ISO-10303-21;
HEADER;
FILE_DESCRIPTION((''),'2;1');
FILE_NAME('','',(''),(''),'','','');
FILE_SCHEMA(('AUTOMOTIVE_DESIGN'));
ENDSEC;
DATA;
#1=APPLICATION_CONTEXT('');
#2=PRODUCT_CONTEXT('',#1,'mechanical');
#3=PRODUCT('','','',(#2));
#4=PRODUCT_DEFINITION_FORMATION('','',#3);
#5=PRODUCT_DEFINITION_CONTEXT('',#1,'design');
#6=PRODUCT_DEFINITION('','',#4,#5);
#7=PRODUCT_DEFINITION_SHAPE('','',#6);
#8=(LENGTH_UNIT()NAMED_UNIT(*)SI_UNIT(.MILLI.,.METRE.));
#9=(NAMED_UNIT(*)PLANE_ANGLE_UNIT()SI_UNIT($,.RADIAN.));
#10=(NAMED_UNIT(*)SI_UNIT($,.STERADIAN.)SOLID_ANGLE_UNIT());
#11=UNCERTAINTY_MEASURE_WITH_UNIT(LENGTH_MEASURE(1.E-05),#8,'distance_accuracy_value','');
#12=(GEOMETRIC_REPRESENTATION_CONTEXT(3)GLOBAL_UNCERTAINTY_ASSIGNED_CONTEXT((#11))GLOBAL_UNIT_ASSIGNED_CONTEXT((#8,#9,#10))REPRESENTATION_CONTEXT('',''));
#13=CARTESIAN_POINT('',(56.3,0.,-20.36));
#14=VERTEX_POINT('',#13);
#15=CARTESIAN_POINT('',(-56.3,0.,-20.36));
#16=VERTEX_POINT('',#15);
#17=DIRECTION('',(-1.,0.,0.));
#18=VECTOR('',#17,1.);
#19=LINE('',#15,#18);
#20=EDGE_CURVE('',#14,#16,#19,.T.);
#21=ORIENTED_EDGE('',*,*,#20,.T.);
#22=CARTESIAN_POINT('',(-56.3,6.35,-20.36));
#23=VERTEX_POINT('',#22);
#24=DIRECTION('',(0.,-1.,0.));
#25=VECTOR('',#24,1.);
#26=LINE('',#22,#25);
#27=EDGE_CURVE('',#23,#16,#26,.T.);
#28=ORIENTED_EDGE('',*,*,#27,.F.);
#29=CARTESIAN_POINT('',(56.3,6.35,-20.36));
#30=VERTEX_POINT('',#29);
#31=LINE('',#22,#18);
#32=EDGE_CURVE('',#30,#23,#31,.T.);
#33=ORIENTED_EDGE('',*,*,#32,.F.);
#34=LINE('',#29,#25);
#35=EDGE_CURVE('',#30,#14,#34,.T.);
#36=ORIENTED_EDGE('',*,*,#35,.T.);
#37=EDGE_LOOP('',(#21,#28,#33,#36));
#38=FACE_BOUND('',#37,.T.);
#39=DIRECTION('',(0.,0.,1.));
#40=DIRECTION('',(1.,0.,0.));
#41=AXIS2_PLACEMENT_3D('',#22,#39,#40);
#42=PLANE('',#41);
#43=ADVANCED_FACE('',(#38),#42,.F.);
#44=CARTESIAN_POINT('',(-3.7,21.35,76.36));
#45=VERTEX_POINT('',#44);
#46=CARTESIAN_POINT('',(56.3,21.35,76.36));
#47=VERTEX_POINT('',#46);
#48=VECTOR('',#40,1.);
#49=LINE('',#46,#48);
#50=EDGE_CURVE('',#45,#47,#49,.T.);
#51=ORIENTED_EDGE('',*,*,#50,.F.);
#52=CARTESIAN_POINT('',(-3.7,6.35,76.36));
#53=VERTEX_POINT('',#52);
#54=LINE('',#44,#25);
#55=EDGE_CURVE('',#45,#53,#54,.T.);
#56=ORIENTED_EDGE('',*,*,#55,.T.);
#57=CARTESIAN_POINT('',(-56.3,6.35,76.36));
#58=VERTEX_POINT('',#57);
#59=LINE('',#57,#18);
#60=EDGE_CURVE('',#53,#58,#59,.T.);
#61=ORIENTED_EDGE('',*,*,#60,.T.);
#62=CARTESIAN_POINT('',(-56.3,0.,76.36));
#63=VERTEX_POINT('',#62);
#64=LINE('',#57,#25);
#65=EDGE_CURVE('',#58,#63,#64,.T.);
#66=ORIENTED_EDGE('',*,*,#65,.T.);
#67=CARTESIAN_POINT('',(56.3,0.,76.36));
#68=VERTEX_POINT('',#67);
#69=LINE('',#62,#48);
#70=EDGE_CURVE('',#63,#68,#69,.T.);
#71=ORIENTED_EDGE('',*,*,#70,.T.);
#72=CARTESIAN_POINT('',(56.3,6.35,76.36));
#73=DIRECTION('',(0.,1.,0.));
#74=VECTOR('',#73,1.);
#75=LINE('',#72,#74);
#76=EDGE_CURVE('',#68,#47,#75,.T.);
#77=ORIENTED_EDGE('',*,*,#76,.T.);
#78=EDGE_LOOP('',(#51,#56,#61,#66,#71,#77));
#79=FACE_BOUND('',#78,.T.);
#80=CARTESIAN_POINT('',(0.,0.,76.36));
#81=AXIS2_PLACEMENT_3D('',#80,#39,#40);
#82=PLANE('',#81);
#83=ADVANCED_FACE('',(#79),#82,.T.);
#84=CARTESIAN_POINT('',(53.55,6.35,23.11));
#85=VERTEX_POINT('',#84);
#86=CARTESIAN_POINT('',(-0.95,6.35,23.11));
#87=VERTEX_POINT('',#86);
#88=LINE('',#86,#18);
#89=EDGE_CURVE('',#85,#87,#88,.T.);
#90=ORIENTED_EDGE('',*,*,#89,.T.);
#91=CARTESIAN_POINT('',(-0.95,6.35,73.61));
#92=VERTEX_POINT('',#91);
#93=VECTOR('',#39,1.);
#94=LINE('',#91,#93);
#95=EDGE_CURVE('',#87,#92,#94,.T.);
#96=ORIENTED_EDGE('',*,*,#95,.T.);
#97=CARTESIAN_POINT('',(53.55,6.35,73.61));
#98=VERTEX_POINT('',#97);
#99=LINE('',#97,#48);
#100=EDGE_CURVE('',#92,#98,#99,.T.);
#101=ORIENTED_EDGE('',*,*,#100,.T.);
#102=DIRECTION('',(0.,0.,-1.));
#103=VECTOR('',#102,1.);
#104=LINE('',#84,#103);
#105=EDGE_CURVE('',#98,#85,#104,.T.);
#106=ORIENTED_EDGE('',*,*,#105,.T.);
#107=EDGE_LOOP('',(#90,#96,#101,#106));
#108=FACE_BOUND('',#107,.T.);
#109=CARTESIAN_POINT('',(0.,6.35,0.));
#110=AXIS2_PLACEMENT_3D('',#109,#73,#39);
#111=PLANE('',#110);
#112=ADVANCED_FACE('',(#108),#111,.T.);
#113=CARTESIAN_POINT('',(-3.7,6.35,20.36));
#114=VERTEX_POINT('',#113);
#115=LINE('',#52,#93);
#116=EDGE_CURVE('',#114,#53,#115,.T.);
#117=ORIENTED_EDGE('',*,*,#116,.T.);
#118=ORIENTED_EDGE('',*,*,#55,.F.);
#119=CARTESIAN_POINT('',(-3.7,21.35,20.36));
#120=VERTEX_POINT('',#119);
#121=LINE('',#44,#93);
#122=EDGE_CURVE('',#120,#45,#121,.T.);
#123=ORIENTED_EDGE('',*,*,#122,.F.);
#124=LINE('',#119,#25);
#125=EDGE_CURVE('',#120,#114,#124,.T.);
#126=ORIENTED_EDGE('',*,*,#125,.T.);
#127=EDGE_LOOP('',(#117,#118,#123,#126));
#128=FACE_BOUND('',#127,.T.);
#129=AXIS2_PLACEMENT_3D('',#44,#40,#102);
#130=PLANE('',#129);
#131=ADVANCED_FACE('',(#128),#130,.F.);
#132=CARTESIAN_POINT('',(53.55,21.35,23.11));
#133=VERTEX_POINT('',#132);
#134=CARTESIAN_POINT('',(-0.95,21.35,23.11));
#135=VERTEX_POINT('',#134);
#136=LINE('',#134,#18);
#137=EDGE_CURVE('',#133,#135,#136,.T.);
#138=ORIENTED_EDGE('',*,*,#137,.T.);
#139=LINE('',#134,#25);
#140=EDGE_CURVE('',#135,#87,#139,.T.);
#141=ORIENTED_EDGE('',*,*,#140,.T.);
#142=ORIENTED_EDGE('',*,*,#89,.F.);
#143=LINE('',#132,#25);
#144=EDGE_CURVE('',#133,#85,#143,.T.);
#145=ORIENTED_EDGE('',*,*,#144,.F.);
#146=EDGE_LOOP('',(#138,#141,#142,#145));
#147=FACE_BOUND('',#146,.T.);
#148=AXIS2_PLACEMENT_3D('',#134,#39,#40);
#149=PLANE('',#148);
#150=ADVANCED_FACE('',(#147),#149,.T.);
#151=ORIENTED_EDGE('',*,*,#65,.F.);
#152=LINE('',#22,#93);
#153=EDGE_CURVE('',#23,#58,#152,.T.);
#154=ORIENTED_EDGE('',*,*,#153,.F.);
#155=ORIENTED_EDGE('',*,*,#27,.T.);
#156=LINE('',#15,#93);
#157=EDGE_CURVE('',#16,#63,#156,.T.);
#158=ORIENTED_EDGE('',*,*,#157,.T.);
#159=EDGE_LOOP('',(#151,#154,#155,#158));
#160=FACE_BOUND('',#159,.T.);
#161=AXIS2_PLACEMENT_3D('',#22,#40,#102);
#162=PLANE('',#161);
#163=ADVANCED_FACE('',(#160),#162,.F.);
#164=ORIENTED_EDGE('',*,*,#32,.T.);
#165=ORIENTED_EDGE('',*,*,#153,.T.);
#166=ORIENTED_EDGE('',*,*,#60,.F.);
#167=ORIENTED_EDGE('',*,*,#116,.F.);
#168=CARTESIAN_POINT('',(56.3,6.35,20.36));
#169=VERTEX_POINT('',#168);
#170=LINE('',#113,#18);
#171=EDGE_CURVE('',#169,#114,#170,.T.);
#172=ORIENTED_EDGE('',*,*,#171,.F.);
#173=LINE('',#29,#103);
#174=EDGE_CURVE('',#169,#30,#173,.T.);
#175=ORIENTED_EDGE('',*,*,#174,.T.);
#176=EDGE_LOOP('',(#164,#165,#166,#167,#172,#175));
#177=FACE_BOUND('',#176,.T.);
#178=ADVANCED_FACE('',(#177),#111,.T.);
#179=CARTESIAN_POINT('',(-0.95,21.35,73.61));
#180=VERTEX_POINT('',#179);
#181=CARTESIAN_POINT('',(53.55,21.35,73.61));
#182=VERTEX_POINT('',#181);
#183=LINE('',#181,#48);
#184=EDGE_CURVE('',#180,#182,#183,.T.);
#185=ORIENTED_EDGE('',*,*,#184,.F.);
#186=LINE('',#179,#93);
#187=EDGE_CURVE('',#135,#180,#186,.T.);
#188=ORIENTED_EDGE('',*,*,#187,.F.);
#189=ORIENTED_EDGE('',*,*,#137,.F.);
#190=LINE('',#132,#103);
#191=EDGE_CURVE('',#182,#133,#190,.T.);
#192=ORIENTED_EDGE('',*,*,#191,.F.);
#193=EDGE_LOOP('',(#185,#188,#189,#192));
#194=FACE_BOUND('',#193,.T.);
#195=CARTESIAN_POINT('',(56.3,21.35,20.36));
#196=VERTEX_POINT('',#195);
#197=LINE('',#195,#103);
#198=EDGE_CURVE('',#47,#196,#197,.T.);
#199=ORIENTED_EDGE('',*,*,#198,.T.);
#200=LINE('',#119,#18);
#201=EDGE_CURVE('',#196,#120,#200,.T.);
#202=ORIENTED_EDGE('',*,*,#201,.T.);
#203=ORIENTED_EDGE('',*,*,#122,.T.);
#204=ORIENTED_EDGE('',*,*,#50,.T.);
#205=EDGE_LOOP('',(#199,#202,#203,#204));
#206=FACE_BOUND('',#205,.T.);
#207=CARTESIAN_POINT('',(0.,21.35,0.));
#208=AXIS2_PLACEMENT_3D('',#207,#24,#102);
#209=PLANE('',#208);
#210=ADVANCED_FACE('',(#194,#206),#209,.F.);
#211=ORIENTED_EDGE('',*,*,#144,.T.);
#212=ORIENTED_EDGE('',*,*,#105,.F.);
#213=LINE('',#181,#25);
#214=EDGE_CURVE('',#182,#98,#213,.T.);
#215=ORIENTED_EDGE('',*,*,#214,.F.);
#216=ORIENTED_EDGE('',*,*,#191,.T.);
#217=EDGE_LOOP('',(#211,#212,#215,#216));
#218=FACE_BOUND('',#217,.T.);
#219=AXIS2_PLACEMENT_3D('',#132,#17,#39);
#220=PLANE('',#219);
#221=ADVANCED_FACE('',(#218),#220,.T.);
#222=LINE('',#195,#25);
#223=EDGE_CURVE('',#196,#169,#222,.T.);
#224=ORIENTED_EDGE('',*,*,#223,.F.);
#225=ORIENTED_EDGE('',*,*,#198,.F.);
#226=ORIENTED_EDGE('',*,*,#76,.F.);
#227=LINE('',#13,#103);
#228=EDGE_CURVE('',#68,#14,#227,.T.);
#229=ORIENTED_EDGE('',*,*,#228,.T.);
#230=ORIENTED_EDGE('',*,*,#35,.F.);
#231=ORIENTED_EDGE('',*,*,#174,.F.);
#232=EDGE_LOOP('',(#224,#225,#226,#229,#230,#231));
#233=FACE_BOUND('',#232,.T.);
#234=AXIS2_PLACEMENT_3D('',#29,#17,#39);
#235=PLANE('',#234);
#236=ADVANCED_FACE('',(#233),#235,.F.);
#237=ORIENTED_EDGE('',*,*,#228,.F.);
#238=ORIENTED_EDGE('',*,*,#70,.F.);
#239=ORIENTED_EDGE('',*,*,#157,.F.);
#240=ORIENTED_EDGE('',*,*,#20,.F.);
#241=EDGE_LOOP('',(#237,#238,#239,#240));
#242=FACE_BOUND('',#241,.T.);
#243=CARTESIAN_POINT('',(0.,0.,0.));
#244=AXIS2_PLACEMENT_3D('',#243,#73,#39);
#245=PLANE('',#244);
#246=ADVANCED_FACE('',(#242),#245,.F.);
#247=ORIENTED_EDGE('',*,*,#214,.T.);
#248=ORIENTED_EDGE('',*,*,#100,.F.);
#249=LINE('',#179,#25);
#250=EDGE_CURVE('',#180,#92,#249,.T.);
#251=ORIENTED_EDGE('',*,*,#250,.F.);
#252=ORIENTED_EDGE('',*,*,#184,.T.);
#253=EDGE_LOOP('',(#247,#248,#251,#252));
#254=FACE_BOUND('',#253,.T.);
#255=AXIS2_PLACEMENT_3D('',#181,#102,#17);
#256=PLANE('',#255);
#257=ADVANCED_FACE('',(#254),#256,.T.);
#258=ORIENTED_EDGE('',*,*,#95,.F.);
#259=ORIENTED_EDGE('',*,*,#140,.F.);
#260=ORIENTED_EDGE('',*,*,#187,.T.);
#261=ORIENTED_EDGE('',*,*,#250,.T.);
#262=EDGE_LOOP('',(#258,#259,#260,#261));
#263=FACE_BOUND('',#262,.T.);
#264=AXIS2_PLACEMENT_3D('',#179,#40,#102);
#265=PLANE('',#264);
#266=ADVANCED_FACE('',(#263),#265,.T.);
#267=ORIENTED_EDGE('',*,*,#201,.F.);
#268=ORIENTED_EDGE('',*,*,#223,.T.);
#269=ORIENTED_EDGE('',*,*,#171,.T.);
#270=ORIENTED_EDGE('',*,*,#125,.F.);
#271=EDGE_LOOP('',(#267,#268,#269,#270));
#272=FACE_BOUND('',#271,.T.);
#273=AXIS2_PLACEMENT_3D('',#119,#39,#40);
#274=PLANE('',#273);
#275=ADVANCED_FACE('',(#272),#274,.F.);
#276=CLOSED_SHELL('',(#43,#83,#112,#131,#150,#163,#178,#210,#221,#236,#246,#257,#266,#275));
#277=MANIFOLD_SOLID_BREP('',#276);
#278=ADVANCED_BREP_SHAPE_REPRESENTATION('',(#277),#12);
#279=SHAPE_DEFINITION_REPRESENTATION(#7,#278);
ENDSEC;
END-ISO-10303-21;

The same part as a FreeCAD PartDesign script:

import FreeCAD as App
import Part
import Sketcher
from FreeCAD import Vector
Q = App.Units.Quantity


def add_polygon(sketch, points):
    """Adds a closed chain of lines whose ends are joined by coincident constraints."""
    first, n = sketch.GeometryCount, len(points)
    for a, b in zip(points, points[1:] + points[:1]):
        sketch.addGeometry(Part.LineSegment(App.Vector(*a, 0), App.Vector(*b, 0)), False)
    for i in range(n):
        sketch.addConstraint(Sketcher.Constraint("Coincident", first + i, 2, first + (i + 1) % n, 1))

doc = App.newDocument("Part")
params = doc.addObject("Spreadsheet::Sheet", "Params")
for row, (alias, value) in enumerate([
    ("sketch1_width", "112.6 mm"),
    ("sketch1_height", "40.72 mm"),
    ("pad1_length", "6.35 mm"),
    ("sketch2_width", "112.6 mm"),
    ("sketch2_height", "6.35 mm"),
    ("pad2_length", "56 mm"),
    ("sketch3_width", "60 mm"),
    ("sketch3_height", "56 mm"),
    ("sketch3_width2", "54.5 mm"),
    ("sketch3_height2", "50.5 mm"),
    ("pad3_length", "15 mm"),
], start=1):
    params.set(f"A{row}", alias)
    params.set(f"B{row}", "=" + value)
    params.setAlias(f"B{row}", alias)

body = doc.addObject("PartDesign::Body", "Body")

# Sketch on XZ plane
sketch1 = body.newObject("Sketcher::SketchObject", "Sketch")
sketch1.AttachmentSupport = (doc.getObject("XZ_Plane"), [""])
sketch1.MapMode = "FlatFace"
add_polygon(sketch1, [(-56.3, -20.36), (-56.3, 20.36), (56.3, 20.36), (56.3, -20.36)])  # lines 0-3
sketch1.addConstraint([
    Sketcher.Constraint("Vertical", 0),
    Sketcher.Constraint("Horizontal", 1),
    Sketcher.Constraint("Vertical", 2),
    Sketcher.Constraint("Horizontal", 3),
    Sketcher.Constraint("Symmetric", 0, 2, 2, 2, -1, 1),
    Sketcher.Constraint("DistanceX", 1, 1, 1, 2, Q("112.6 mm")),
    Sketcher.Constraint("DistanceY", 0, 1, 0, 2, Q("40.72 mm")),
])
sketch1.setExpression("Constraints[9]", "Params.sketch1_width")
sketch1.setExpression("Constraints[10]", "Params.sketch1_height")
pad1 = body.newObject("PartDesign::Pad", "Pad")
pad1.Profile = sketch1
pad1.setExpression("Length", "Params.pad1_length")
pad1.Reversed = True

# Sketch on XY plane
sketch2 = body.newObject("Sketcher::SketchObject", "Sketch001")
sketch2.AttachmentSupport = (doc.getObject("XY_Plane"), [""])
sketch2.MapMode = "FlatFace"
sketch2.AttachmentOffset = App.Placement(Vector(0, 0, 20.36), App.Rotation())
add_polygon(sketch2, [(-56.3, 6.35), (-56.3, 0), (56.3, 0), (56.3, 6.35)])  # lines 0-3
sketch2.addConstraint([
    Sketcher.Constraint("Vertical", 0),
    Sketcher.Constraint("Horizontal", 1),
    Sketcher.Constraint("Vertical", 2),
    Sketcher.Constraint("Horizontal", 3),
    Sketcher.Constraint("Symmetric", 0, 2, 1, 2, -1, 1),
    Sketcher.Constraint("DistanceX", 1, 1, 1, 2, Q("112.6 mm")),
    Sketcher.Constraint("DistanceY", 0, 2, 0, 1, Q("6.35 mm")),
])
sketch2.setExpression("Constraints[9]", "Params.sketch2_width")
sketch2.setExpression("Constraints[10]", "Params.sketch2_height")
pad2 = body.newObject("PartDesign::Pad", "Pad001")
pad2.Profile = sketch2
pad2.setExpression("Length", "Params.pad2_length")

# Sketch on XZ plane
sketch3 = body.newObject("Sketcher::SketchObject", "Sketch002")
sketch3.AttachmentSupport = (doc.getObject("XZ_Plane"), [""])
sketch3.MapMode = "FlatFace"
sketch3.AttachmentOffset = App.Placement(Vector(0, 0, -6.35), App.Rotation())
add_polygon(sketch3, [(-3.7, 20.36), (-3.7, 76.36), (56.3, 76.36), (56.3, 20.36)])  # lines 0-3
add_polygon(sketch3, [(53.55, 73.61), (-0.95, 73.61), (-0.95, 23.11), (53.55, 23.11)])  # lines 4-7
sketch3.addConstraint([
    Sketcher.Constraint("Vertical", 0),
    Sketcher.Constraint("Horizontal", 1),
    Sketcher.Constraint("Vertical", 2),
    Sketcher.Constraint("Horizontal", 3),
    Sketcher.Constraint("Horizontal", 4),
    Sketcher.Constraint("Vertical", 5),
    Sketcher.Constraint("Horizontal", 6),
    Sketcher.Constraint("Vertical", 7),
    Sketcher.Constraint("DistanceX", 1, 1, 1, 2, Q("60 mm")),
    Sketcher.Constraint("DistanceY", 0, 1, 0, 2, Q("56 mm")),
    Sketcher.Constraint("DistanceX", 4, 2, 4, 1, Q("54.5 mm")),
    Sketcher.Constraint("DistanceY", 5, 2, 5, 1, Q("50.5 mm")),
    Sketcher.Constraint("DistanceX", 0, 2, -1, 1, Q("3.7 mm")),
    Sketcher.Constraint("DistanceY", -1, 1, 0, 2, Q("76.36 mm")),
    Sketcher.Constraint("DistanceX", 4, 2, -1, 1, Q("0.95 mm")),
    Sketcher.Constraint("DistanceY", -1, 1, 4, 2, Q("73.61 mm")),
])
sketch3.setExpression("Constraints[16]", "Params.sketch3_width")
sketch3.setExpression("Constraints[17]", "Params.sketch3_height")
sketch3.setExpression("Constraints[18]", "Params.sketch3_width2")
sketch3.setExpression("Constraints[19]", "Params.sketch3_height2")
pad3 = body.newObject("PartDesign::Pad", "Pad002")
pad3.Profile = sketch3
pad3.setExpression("Length", "Params.pad3_length")
pad3.Reversed = True

doc.recompute()
